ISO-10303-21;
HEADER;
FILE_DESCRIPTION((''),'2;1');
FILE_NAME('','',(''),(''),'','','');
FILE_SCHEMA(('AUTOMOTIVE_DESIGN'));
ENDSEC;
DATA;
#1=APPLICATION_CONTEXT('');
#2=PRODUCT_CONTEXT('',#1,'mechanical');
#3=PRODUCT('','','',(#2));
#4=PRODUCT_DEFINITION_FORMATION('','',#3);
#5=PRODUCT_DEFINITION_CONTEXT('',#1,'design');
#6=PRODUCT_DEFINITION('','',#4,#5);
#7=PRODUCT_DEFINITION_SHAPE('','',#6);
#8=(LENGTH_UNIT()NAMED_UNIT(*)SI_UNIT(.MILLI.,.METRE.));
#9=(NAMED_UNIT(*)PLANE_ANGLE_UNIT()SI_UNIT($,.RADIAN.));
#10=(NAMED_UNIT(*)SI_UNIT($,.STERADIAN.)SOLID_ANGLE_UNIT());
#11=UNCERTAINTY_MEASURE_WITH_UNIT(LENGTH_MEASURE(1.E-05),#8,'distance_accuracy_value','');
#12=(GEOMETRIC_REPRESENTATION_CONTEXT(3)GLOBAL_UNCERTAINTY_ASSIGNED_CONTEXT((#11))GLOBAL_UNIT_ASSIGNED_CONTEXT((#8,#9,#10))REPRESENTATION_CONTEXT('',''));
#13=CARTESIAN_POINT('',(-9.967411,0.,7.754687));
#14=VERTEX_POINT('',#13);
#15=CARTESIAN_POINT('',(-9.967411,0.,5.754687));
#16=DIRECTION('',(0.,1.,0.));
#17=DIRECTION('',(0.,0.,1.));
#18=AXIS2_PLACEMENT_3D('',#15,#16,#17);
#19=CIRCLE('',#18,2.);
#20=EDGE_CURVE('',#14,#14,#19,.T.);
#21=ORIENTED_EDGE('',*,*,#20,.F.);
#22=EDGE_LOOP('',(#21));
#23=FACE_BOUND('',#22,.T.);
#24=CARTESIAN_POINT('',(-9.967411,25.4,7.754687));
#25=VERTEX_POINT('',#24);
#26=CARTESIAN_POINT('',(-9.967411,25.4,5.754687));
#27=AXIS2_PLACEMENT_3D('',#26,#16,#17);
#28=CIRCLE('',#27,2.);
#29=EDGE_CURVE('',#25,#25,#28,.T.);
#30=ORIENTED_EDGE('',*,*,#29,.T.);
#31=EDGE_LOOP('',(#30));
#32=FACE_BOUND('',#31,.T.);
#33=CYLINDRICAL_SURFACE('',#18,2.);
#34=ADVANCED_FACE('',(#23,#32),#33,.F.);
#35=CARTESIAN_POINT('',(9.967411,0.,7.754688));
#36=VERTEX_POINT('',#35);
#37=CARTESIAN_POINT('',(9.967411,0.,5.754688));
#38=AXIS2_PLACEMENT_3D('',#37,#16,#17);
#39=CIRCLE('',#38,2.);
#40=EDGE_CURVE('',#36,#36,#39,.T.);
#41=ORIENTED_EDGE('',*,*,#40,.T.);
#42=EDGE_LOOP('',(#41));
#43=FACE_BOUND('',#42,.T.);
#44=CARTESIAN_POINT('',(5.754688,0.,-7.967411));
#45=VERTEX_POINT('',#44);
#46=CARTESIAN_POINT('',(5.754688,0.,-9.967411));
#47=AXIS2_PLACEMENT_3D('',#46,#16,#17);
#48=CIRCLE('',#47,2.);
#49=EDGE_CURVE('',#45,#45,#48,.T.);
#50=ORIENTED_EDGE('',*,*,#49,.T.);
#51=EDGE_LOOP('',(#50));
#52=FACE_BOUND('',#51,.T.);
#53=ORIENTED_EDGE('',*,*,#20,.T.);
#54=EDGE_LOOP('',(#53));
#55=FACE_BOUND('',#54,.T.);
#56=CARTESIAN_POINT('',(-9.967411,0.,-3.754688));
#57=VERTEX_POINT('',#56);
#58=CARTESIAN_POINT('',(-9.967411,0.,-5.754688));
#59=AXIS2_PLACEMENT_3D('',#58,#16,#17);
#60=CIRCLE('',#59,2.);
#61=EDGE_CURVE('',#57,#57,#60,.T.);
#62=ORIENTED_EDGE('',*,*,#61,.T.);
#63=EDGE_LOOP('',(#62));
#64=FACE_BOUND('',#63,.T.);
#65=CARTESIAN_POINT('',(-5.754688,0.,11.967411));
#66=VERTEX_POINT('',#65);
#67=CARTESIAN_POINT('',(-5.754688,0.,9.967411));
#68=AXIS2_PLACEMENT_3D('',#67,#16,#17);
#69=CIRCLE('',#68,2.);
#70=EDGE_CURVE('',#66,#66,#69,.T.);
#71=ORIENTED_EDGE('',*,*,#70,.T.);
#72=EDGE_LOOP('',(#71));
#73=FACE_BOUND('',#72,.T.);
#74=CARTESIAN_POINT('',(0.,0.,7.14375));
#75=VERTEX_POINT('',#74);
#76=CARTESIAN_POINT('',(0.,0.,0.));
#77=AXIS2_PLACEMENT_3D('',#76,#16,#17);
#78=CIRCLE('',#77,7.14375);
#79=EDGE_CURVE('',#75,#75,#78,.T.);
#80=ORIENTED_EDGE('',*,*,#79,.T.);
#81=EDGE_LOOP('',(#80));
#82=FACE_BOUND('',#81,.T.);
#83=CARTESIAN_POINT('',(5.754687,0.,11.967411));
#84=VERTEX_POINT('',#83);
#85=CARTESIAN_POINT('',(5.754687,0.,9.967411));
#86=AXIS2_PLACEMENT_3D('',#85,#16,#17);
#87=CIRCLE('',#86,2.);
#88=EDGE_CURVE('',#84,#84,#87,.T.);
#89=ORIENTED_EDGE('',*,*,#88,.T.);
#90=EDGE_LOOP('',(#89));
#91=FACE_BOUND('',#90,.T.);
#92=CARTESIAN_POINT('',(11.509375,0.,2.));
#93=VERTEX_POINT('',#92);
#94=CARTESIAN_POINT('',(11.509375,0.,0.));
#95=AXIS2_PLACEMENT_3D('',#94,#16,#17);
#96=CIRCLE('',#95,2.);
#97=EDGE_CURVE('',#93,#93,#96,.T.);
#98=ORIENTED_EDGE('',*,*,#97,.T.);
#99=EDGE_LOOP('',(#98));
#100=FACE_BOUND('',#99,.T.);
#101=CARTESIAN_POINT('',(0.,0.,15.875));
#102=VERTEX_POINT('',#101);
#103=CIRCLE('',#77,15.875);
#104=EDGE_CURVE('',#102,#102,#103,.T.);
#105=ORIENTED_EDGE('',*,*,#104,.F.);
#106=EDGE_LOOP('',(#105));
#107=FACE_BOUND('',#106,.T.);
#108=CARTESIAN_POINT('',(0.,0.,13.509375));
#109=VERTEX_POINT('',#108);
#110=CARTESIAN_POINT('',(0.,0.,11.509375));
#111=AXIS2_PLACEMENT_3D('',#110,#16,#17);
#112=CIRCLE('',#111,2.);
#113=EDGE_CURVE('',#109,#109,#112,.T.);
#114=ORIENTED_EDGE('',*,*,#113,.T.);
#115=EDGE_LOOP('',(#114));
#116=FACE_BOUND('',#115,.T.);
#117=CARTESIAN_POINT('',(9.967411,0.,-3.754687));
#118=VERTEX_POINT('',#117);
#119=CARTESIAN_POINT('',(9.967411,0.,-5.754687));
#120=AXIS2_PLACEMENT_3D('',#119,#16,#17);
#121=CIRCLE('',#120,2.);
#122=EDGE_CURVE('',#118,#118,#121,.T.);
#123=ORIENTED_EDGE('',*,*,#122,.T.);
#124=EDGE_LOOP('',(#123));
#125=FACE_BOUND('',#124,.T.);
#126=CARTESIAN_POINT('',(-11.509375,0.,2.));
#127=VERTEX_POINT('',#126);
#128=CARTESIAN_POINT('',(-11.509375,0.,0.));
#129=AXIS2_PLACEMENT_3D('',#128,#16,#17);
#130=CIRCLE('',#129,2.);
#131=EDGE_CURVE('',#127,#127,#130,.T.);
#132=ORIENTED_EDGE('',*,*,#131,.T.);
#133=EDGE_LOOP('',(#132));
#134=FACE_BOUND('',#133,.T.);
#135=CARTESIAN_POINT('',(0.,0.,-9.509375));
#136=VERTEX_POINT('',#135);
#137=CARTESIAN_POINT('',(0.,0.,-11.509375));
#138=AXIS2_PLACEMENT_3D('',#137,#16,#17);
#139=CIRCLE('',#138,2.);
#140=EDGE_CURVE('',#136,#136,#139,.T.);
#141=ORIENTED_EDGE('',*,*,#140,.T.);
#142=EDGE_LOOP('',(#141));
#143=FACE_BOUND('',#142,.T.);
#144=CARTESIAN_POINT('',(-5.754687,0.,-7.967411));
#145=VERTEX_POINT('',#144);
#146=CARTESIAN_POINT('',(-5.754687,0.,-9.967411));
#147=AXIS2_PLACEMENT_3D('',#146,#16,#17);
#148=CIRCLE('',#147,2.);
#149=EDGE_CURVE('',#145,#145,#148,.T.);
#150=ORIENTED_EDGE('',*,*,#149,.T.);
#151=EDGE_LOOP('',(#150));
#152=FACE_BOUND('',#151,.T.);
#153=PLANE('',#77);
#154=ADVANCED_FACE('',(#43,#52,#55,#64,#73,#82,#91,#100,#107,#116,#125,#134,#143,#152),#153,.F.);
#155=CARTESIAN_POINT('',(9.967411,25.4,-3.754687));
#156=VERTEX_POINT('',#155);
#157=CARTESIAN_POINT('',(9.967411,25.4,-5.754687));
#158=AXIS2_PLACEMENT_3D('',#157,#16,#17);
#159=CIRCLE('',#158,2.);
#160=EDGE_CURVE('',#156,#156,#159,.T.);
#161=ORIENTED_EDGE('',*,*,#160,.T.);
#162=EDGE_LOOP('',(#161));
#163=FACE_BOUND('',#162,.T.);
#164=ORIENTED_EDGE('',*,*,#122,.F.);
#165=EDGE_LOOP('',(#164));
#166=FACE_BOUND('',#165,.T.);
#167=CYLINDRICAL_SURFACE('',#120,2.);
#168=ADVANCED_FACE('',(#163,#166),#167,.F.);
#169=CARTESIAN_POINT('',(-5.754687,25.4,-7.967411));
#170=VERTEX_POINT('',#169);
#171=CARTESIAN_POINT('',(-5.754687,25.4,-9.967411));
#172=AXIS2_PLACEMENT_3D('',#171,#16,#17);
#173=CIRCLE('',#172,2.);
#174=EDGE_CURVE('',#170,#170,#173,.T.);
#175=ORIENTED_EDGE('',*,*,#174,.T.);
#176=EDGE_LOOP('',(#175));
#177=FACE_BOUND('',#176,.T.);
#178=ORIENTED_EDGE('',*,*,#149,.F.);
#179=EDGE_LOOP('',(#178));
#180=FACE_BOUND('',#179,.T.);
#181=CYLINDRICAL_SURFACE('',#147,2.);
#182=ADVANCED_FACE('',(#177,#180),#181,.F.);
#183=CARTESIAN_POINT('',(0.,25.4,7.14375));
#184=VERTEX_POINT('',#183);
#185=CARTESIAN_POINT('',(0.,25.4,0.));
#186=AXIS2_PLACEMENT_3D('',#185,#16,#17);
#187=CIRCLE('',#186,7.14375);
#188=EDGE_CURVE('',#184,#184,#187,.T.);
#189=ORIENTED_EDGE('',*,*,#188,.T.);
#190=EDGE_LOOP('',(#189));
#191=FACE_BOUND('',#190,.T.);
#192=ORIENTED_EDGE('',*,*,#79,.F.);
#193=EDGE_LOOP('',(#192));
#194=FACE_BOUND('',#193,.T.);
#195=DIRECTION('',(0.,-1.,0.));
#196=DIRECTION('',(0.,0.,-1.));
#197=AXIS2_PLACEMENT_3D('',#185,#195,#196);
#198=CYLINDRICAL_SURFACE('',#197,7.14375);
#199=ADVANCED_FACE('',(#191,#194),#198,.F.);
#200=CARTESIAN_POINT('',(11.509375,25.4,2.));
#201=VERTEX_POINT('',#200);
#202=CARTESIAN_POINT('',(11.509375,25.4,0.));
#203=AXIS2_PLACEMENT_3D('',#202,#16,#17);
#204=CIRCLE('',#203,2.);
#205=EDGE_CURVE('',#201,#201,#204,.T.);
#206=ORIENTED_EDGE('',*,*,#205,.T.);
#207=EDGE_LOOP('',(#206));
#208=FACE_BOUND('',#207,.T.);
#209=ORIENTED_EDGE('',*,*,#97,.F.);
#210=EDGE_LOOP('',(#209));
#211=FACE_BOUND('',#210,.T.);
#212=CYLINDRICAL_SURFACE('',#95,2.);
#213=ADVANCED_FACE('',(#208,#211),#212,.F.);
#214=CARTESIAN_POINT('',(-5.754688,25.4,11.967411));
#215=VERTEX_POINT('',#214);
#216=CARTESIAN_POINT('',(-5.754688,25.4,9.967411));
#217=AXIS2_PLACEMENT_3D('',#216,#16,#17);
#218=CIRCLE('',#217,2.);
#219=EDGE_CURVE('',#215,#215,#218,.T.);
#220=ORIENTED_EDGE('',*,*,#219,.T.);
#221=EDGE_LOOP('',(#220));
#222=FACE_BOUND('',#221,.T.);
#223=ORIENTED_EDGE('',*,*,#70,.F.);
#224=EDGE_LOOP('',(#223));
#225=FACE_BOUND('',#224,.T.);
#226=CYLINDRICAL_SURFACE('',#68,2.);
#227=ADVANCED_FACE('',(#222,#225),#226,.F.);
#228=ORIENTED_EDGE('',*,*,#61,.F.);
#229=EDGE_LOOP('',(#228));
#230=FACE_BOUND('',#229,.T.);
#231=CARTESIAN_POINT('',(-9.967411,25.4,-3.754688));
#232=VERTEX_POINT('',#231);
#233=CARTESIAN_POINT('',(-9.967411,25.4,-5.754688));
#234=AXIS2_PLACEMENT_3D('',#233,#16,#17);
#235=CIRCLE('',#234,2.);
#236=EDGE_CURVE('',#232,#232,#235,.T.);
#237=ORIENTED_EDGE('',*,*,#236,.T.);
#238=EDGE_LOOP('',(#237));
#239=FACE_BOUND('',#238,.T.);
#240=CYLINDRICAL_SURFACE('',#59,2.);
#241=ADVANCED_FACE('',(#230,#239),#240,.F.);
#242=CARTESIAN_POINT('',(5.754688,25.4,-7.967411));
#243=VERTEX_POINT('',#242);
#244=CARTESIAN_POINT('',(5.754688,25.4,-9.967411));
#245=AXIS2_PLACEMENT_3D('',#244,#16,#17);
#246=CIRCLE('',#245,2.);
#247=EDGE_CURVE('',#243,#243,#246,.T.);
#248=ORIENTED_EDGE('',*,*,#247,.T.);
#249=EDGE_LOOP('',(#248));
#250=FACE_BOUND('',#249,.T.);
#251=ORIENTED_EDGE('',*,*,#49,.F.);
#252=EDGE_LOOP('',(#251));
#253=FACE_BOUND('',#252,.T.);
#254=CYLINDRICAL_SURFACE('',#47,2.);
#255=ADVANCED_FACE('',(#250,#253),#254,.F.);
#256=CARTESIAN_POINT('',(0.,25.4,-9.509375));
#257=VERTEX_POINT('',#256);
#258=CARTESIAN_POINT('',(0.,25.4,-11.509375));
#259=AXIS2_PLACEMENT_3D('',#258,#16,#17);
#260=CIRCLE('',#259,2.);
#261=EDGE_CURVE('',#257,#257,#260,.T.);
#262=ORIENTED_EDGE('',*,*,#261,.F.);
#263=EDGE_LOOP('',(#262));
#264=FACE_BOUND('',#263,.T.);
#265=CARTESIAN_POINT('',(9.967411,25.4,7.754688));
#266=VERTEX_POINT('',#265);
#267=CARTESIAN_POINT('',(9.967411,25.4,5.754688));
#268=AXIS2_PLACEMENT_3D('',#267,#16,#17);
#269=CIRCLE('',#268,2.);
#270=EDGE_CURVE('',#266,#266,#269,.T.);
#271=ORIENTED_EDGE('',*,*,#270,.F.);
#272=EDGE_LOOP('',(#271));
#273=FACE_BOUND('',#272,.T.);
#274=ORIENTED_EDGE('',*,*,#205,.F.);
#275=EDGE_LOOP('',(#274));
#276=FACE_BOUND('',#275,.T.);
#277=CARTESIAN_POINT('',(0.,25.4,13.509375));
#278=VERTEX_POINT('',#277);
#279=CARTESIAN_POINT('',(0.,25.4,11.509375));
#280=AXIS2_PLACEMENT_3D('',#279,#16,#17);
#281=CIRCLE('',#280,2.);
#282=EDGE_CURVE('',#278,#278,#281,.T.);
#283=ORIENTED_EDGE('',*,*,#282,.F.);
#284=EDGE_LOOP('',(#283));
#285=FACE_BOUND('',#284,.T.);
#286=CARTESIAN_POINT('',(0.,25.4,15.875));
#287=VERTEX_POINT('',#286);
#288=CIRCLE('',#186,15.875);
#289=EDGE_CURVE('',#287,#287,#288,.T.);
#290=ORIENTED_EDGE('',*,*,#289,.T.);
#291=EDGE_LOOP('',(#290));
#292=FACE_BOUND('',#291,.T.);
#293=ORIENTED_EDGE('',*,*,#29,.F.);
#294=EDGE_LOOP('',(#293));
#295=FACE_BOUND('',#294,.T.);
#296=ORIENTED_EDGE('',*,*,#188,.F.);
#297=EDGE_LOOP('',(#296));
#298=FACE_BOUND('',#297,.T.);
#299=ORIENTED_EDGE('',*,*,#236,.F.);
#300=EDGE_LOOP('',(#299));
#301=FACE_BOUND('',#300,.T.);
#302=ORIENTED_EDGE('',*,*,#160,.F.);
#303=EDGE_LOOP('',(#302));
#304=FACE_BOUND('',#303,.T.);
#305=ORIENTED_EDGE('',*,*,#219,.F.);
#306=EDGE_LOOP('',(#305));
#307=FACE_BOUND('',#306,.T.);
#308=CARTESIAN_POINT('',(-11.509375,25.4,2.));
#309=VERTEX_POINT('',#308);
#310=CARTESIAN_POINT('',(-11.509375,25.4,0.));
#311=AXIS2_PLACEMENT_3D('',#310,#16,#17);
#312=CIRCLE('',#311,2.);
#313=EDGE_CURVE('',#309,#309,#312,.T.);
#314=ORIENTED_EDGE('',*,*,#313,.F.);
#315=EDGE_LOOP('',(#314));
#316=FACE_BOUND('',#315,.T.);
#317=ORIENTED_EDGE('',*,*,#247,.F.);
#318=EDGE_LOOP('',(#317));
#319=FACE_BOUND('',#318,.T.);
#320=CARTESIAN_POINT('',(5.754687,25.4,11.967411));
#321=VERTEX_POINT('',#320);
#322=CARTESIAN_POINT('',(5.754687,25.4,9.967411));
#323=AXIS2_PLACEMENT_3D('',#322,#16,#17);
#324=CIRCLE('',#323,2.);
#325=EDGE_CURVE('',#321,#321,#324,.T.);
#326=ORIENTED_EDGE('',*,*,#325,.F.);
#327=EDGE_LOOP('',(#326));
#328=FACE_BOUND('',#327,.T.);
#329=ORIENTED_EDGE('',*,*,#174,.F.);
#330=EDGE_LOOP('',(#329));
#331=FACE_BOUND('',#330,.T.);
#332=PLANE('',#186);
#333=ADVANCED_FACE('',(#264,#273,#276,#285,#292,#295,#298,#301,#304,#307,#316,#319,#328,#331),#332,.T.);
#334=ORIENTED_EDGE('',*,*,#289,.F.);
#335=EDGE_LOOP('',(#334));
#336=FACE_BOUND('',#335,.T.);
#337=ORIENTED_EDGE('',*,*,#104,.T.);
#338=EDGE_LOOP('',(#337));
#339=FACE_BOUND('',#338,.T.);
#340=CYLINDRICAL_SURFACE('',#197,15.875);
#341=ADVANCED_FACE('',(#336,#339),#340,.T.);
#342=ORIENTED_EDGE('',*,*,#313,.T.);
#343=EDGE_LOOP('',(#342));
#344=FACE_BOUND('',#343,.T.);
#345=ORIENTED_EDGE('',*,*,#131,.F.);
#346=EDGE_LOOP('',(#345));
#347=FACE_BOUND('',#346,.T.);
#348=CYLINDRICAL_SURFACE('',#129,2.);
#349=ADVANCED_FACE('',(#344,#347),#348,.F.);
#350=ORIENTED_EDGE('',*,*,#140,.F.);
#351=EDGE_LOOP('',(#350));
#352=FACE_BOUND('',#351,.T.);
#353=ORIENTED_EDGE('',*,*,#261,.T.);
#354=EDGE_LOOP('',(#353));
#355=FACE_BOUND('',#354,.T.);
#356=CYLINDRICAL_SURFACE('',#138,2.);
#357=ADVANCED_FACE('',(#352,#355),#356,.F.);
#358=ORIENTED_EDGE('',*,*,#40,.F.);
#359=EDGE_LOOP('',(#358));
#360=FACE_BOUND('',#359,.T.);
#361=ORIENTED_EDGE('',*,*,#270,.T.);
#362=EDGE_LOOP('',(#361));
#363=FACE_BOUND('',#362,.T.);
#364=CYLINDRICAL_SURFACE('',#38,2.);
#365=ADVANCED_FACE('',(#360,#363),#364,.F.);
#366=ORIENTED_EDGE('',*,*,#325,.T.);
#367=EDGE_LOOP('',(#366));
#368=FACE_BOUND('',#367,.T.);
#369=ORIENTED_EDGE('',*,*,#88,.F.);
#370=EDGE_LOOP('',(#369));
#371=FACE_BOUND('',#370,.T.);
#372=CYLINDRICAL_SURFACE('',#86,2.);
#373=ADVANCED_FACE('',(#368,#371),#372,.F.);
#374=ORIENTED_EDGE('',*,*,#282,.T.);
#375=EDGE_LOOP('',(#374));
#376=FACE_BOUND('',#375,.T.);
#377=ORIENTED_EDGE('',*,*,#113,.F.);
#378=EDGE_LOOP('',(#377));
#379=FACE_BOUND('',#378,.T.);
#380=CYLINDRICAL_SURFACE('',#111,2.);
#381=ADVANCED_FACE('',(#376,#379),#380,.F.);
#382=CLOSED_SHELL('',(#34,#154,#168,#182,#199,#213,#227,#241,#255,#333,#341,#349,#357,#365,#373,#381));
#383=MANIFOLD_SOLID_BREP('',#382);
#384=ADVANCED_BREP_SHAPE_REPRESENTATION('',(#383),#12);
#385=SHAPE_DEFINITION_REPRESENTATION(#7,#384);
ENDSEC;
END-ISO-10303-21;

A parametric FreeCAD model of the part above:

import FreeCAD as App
import Part
import Sketcher
Q = App.Units.Quantity

doc = App.newDocument("Part")
body = doc.addObject("PartDesign::Body", "Body")

# Sketch on XZ plane
sketch1 = doc.addObject("Sketcher::SketchObject", "Sketch")
body.addObject(sketch1)
sketch1.AttachmentSupport = (doc.XZ_Plane, [""])
sketch1.MapMode = "FlatFace"
sketch1.addGeometry([
    Part.Circle(App.Vector(0, 0, 0), App.Vector(0, 0, 1), 16),
    Part.Circle(App.Vector(0, 0, 0), App.Vector(0, 0, 1), 7),
], False)
sketch1.addConstraint([
    Sketcher.Constraint("Coincident", 0, 3, -1, 1),
    Sketcher.Constraint("Coincident", 1, 3, -1, 1),
    Sketcher.Constraint("Diameter", 0, Q("1.25 in")),
    Sketcher.Constraint("Diameter", 1, Q("0.5625 in")),
])
pad1 = doc.addObject("PartDesign::Pad", "Pad")
body.addObject(pad1)
pad1.Profile = sketch1
pad1.Length = Q("1 in")
pad1.Reversed = True

# Sketch on XZ plane
sketch2 = doc.addObject("Sketcher::SketchObject", "Sketch001")
body.addObject(sketch2)
sketch2.AttachmentSupport = (doc.XZ_Plane, [""])
sketch2.MapMode = "FlatFace"
sketch2.AttachmentOffset = App.Placement(App.Vector(0, 0, -1 * 25.4), App.Rotation())
sketch2.addGeometry([
    Part.Circle(App.Vector(0, -11.5, 0), App.Vector(0, 0, 1), 2),  # 0
    Part.Circle(App.Vector(5.8, -10, 0), App.Vector(0, 0, 1), 2),  # 1
    Part.Circle(App.Vector(10, -5.8, 0), App.Vector(0, 0, 1), 2),  # 2
    Part.Circle(App.Vector(11.5, 0, 0), App.Vector(0, 0, 1), 2),  # 3
    Part.Circle(App.Vector(10, 5.8, 0), App.Vector(0, 0, 1), 2),  # 4
    Part.Circle(App.Vector(5.8, 10, 0), App.Vector(0, 0, 1), 2),  # 5
    Part.Circle(App.Vector(0, 11.5, 0), App.Vector(0, 0, 1), 2),  # 6
    Part.Circle(App.Vector(-5.8, 10, 0), App.Vector(0, 0, 1), 2),  # 7
    Part.Circle(App.Vector(-10, 5.8, 0), App.Vector(0, 0, 1), 2),  # 8
    Part.Circle(App.Vector(-11.5, 0, 0), App.Vector(0, 0, 1), 2),  # 9
    Part.Circle(App.Vector(-10, -5.8, 0), App.Vector(0, 0, 1), 2),  # 10
    Part.Circle(App.Vector(-5.8, -10, 0), App.Vector(0, 0, 1), 2),  # 11
], False)
sketch2.addConstraint([
    Sketcher.Constraint("Equal", 0, 1),
    Sketcher.Constraint("Equal", 1, 2),
    Sketcher.Constraint("Equal", 2, 3),
    Sketcher.Constraint("Equal", 3, 4),
    Sketcher.Constraint("Equal", 4, 5),
    Sketcher.Constraint("Equal", 5, 6),
    Sketcher.Constraint("Equal", 6, 7),
    Sketcher.Constraint("Equal", 7, 8),
    Sketcher.Constraint("Equal", 8, 9),
    Sketcher.Constraint("Equal", 9, 10),
    Sketcher.Constraint("Equal", 10, 11),
    Sketcher.Constraint("Symmetric", 0, 3, 6, 3, -1, 1),
    Sketcher.Constraint("Symmetric", 1, 3, 7, 3, -1, 1),
    Sketcher.Constraint("Symmetric", 2, 3, 8, 3, -1, 1),
    Sketcher.Constraint("Symmetric", 3, 3, 9, 3, -1, 1),
    Sketcher.Constraint("Symmetric", 4, 3, 10, 3, -1, 1),
    Sketcher.Constraint("Symmetric", 5, 3, 11, 3, -1, 1),
    Sketcher.Constraint("Symmetric", 5, 3, 7, 3, -2),
    Sketcher.Constraint("Symmetric", 4, 3, 8, 3, -2),
    Sketcher.Constraint("PointOnObject", 0, 3, -2),
    Sketcher.Constraint("PointOnObject", 3, 3, -1),
    Sketcher.Constraint("Diameter", 0, 4.0),
    Sketcher.Constraint("DistanceY", 0, 3, -1, 1, Q("0.453125 in")),
    Sketcher.Constraint("DistanceX", -1, 1, 3, 3, Q("0.453125 in")),
    Sketcher.Constraint("DistanceY", 2, 3, 4, 3, Q("0.453125 in")),
    Sketcher.Constraint("DistanceX", 7, 3, 5, 3, Q("0.453125 in")),
    Sketcher.Constraint("DistanceY", 1, 3, 4, 3, 15.722099),
    Sketcher.Constraint("DistanceX", 7, 3, 4, 3, 15.722099),
])
pocket1 = doc.addObject("PartDesign::Pocket", "Pocket")
body.addObject(pocket1)
pocket1.Profile = sketch2
pocket1.Length = Q("1 in")
pocket1.Reversed = True

doc.recompute()
